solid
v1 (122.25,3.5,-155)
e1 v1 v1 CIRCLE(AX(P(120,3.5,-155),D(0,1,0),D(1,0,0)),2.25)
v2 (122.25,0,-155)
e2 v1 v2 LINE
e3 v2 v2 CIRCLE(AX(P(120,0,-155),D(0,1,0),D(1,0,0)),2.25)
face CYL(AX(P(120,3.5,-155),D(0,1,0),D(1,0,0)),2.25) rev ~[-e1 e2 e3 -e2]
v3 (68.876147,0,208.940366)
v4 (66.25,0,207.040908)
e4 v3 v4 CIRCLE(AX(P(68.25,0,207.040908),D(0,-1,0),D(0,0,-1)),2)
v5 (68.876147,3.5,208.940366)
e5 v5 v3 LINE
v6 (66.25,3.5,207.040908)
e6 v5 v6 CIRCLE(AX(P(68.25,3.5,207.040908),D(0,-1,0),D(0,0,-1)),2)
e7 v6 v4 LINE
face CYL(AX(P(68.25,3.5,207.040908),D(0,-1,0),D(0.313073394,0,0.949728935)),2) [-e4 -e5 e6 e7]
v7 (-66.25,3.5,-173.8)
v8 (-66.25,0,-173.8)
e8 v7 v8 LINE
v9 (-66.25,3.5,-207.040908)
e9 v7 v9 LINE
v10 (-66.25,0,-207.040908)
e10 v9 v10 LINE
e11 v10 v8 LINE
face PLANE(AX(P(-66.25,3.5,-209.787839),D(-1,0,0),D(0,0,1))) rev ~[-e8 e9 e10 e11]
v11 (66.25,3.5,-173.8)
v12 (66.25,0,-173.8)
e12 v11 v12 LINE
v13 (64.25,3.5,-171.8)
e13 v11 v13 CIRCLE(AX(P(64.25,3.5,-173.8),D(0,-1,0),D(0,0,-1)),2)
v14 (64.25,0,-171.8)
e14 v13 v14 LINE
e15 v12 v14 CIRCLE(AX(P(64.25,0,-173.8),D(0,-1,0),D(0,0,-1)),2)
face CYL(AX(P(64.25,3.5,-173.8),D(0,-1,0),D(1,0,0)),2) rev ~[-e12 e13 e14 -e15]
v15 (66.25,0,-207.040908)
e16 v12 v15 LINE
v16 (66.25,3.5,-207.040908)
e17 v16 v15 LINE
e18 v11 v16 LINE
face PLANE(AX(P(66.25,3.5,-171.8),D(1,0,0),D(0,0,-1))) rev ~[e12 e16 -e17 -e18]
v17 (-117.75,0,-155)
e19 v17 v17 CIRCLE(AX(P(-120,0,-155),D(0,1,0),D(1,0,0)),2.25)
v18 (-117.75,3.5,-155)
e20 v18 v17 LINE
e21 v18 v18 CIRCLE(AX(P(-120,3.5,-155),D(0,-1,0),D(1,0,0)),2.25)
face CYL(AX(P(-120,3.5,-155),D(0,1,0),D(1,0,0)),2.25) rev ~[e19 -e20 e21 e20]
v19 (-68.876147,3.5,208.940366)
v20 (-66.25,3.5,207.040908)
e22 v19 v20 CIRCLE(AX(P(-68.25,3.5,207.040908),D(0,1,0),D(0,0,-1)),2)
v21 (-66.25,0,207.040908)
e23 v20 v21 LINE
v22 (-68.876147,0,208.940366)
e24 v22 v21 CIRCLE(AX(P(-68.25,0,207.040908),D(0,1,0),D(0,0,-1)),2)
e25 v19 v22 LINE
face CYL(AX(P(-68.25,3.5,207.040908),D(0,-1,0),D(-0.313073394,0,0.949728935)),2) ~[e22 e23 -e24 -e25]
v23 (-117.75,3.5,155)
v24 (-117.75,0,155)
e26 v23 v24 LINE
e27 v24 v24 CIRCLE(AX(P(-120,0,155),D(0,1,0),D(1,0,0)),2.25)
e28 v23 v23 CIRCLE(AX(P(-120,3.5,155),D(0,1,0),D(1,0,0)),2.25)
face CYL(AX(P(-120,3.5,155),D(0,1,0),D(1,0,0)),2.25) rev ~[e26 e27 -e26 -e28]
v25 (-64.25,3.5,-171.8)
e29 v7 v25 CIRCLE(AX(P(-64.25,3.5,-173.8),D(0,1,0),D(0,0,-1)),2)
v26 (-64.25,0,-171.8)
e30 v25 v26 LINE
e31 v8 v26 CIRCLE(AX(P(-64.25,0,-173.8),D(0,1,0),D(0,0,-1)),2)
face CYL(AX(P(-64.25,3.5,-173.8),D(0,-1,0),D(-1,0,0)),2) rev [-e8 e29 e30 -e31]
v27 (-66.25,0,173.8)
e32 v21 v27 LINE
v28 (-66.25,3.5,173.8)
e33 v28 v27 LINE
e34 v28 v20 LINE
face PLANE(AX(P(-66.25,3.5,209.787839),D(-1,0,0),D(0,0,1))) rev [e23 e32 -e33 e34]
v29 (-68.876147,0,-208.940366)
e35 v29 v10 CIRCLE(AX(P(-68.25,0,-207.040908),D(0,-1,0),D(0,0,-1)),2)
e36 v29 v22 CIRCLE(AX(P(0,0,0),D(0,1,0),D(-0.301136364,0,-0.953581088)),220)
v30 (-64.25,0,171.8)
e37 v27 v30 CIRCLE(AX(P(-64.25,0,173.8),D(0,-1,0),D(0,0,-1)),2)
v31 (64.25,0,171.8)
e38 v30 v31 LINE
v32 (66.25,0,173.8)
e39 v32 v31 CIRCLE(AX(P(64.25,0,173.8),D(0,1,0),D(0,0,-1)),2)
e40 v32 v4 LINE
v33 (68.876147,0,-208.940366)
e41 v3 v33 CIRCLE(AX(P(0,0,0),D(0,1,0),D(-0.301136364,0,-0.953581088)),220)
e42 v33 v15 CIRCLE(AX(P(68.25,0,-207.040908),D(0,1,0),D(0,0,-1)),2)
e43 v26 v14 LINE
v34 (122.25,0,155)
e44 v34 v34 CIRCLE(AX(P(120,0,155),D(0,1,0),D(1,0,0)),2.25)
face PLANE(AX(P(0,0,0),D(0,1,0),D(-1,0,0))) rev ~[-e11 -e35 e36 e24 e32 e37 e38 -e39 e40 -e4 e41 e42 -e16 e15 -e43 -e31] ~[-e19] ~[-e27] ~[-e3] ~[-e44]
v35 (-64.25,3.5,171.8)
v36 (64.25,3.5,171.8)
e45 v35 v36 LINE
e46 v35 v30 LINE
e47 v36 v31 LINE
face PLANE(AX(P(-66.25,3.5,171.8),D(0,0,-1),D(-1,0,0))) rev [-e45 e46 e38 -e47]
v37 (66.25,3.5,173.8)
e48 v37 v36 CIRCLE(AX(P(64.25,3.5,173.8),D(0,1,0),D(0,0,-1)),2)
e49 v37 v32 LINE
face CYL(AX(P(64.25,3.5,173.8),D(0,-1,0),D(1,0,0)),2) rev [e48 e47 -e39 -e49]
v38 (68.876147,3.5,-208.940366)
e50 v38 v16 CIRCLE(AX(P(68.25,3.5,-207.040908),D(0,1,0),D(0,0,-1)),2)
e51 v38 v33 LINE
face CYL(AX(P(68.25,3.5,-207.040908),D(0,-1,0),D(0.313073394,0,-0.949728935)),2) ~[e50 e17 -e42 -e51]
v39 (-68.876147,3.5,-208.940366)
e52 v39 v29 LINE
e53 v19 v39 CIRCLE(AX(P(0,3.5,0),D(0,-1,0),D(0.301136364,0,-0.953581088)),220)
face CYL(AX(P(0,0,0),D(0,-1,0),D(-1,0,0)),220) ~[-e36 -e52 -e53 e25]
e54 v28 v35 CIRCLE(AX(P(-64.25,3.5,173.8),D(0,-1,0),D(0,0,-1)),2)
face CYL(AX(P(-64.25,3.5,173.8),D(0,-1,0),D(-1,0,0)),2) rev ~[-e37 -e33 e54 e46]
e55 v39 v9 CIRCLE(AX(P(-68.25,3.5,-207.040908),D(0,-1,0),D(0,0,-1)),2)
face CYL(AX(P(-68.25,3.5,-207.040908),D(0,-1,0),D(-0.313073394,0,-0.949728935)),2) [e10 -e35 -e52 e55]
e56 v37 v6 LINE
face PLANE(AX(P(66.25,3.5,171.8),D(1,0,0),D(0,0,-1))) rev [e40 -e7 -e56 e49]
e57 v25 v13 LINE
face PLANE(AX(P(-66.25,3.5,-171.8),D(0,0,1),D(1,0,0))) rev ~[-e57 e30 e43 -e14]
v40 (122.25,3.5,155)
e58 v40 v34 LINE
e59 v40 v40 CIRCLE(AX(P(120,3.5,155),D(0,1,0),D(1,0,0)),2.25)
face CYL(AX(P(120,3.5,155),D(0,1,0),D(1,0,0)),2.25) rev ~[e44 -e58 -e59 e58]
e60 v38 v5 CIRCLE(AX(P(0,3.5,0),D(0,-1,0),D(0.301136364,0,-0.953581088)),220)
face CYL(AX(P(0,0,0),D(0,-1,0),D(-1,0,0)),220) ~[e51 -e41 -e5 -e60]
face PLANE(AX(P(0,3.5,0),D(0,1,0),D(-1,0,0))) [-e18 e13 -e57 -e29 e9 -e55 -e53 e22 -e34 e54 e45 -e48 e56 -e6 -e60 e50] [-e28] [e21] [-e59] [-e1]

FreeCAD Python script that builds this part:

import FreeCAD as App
import Part
import Sketcher
from FreeCAD import Vector
Q = App.Units.Quantity


def edges_at(feature, points):
    """Names of the edges that pass closest to the given points."""
    edges = feature.Shape.Edges
    near = lambda p: min(range(len(edges)), key=lambda i: edges[i].distToShape(Part.Vertex(*p))[0])
    return sorted({f"Edge{near(p) + 1}" for p in points})


def add_polygon(sketch, points):
    """Adds a closed chain of lines whose ends are joined by coincident constraints."""
    first, n = sketch.GeometryCount, len(points)
    for a, b in zip(points, points[1:] + points[:1]):
        sketch.addGeometry(Part.LineSegment(App.Vector(*a, 0), App.Vector(*b, 0)), False)
    for i in range(n):
        sketch.addConstraint(Sketcher.Constraint("Coincident", first + i, 2, first + (i + 1) % n, 1))

doc = App.newDocument("Part")
body = doc.addObject("PartDesign::Body", "Body")

# Sketch on XZ plane
sketch1 = doc.addObject("Sketcher::SketchObject", "Sketch")
body.addObject(sketch1)
sketch1.AttachmentSupport = (doc.XZ_Plane, [""])
sketch1.MapMode = "FlatFace"
sketch1.addGeometry(Part.Circle(Vector(0, 0, 0), Vector(0, 0, 1), 220), False)
sketch1.addConstraint(Sketcher.Constraint("Coincident", 0, 3, -1, 1))
sketch1.addConstraint(Sketcher.Constraint("Diameter", 0, Q("440 mm")))
pad1 = doc.addObject("PartDesign::Pad", "Pad")
body.addObject(pad1)
pad1.Profile = sketch1
pad1.Length = 3.5
pad1.Reversed = True

# Sketch on XZ plane
sketch2 = doc.addObject("Sketcher::SketchObject", "Sketch001")
body.addObject(sketch2)
sketch2.AttachmentSupport = (doc.XZ_Plane, [""])
sketch2.MapMode = "FlatFace"
sketch2.AttachmentOffset = App.Placement(Vector(0, 0, -3.5), App.Rotation())
add_polygon(sketch2, [(-66, -172), (66, -172), (66, -220), (-66, -220)])  # lines 0-3
sketch2.addConstraint(Sketcher.Constraint("Horizontal", 0))
sketch2.addConstraint(Sketcher.Constraint("Vertical", 1))
sketch2.addConstraint(Sketcher.Constraint("Horizontal", 2))
sketch2.addConstraint(Sketcher.Constraint("Vertical", 3))
sketch2.addConstraint(Sketcher.Constraint("DistanceX", 0, 1, 0, 2, Q("132.5 mm")))
sketch2.addConstraint(Sketcher.Constraint("DistanceY", 1, 2, 1, 1, Q("48.2 mm")))
sketch2.addConstraint(Sketcher.Constraint("DistanceY", 1, 2, -1, 1, Q("220 mm")))
sketch2.addConstraint(Sketcher.Constraint("DistanceX", -1, 1, 0, 2, Q("66.25 mm")))
pocket1 = doc.addObject("PartDesign::Pocket", "Pocket")
body.addObject(pocket1)
pocket1.Profile = sketch2
pocket1.Type = "ThroughAll"
pocket1.Reversed = True
doc.recompute()

fillet = doc.addObject("PartDesign::Fillet", "Fillet")
body.addObject(fillet)
fillet.Base = (pocket1, edges_at(pocket1, [
    (-66.25, 1.75, -171.8),
    (-66.25, 1.75, -209.788),
    (66.25, 1.75, -209.788),
    (66.25, 1.75, -171.8),
]))
fillet.Radius = 2
doc.recompute()

mirrored = doc.addObject("PartDesign::Mirrored", "Mirrored")
body.addObject(mirrored)
mirrored.Originals = [pocket1, fillet]
mirrored.MirrorPlane = (doc.XY_Plane, [""])
body.Tip = mirrored

# Sketch on XZ plane
sketch3 = doc.addObject("Sketcher::SketchObject", "Sketch002")
body.addObject(sketch3)
sketch3.AttachmentSupport = (doc.XZ_Plane, [""])
sketch3.MapMode = "FlatFace"
sketch3.AttachmentOffset = App.Placement(Vector(0, 0, -3.5), App.Rotation())
sketch3.addGeometry(Part.Circle(Vector(-120, -155, 0), Vector(0, 0, 1), 2.2), False)
sketch3.addGeometry(Part.Circle(Vector(120, -155, 0), Vector(0, 0, 1), 2.2), False)
sketch3.addGeometry(Part.Circle(Vector(-120, 155, 0), Vector(0, 0, 1), 2.2), False)
sketch3.addGeometry(Part.Circle(Vector(120, 155, 0), Vector(0, 0, 1), 2.2), False)
sketch3.addConstraint(Sketcher.Constraint("Equal", 0, 1))
sketch3.addConstraint(Sketcher.Constraint("Equal", 1, 2))
sketch3.addConstraint(Sketcher.Constraint("Equal", 2, 3))
sketch3.addConstraint(Sketcher.Constraint("Symmetric", 1, 3, 2, 3, -1, 1))
sketch3.addConstraint(Sketcher.Constraint("Symmetric", 0, 3, 3, 3, -1, 1))
sketch3.addConstraint(Sketcher.Constraint("Symmetric", 0, 3, 1, 3, -2))
sketch3.addConstraint(Sketcher.Constraint("Diameter", 0, Q("4.5 mm")))
sketch3.addConstraint(Sketcher.Constraint("DistanceX", 0, 3, -1, 1, Q("120 mm")))
sketch3.addConstraint(Sketcher.Constraint("DistanceY", 0, 3, -1, 1, Q("155 mm")))
pocket2 = doc.addObject("PartDesign::Pocket", "Pocket001")
body.addObject(pocket2)
pocket2.Profile = sketch3
pocket2.Length = 10
pocket2.Reversed = True

doc.recompute()
